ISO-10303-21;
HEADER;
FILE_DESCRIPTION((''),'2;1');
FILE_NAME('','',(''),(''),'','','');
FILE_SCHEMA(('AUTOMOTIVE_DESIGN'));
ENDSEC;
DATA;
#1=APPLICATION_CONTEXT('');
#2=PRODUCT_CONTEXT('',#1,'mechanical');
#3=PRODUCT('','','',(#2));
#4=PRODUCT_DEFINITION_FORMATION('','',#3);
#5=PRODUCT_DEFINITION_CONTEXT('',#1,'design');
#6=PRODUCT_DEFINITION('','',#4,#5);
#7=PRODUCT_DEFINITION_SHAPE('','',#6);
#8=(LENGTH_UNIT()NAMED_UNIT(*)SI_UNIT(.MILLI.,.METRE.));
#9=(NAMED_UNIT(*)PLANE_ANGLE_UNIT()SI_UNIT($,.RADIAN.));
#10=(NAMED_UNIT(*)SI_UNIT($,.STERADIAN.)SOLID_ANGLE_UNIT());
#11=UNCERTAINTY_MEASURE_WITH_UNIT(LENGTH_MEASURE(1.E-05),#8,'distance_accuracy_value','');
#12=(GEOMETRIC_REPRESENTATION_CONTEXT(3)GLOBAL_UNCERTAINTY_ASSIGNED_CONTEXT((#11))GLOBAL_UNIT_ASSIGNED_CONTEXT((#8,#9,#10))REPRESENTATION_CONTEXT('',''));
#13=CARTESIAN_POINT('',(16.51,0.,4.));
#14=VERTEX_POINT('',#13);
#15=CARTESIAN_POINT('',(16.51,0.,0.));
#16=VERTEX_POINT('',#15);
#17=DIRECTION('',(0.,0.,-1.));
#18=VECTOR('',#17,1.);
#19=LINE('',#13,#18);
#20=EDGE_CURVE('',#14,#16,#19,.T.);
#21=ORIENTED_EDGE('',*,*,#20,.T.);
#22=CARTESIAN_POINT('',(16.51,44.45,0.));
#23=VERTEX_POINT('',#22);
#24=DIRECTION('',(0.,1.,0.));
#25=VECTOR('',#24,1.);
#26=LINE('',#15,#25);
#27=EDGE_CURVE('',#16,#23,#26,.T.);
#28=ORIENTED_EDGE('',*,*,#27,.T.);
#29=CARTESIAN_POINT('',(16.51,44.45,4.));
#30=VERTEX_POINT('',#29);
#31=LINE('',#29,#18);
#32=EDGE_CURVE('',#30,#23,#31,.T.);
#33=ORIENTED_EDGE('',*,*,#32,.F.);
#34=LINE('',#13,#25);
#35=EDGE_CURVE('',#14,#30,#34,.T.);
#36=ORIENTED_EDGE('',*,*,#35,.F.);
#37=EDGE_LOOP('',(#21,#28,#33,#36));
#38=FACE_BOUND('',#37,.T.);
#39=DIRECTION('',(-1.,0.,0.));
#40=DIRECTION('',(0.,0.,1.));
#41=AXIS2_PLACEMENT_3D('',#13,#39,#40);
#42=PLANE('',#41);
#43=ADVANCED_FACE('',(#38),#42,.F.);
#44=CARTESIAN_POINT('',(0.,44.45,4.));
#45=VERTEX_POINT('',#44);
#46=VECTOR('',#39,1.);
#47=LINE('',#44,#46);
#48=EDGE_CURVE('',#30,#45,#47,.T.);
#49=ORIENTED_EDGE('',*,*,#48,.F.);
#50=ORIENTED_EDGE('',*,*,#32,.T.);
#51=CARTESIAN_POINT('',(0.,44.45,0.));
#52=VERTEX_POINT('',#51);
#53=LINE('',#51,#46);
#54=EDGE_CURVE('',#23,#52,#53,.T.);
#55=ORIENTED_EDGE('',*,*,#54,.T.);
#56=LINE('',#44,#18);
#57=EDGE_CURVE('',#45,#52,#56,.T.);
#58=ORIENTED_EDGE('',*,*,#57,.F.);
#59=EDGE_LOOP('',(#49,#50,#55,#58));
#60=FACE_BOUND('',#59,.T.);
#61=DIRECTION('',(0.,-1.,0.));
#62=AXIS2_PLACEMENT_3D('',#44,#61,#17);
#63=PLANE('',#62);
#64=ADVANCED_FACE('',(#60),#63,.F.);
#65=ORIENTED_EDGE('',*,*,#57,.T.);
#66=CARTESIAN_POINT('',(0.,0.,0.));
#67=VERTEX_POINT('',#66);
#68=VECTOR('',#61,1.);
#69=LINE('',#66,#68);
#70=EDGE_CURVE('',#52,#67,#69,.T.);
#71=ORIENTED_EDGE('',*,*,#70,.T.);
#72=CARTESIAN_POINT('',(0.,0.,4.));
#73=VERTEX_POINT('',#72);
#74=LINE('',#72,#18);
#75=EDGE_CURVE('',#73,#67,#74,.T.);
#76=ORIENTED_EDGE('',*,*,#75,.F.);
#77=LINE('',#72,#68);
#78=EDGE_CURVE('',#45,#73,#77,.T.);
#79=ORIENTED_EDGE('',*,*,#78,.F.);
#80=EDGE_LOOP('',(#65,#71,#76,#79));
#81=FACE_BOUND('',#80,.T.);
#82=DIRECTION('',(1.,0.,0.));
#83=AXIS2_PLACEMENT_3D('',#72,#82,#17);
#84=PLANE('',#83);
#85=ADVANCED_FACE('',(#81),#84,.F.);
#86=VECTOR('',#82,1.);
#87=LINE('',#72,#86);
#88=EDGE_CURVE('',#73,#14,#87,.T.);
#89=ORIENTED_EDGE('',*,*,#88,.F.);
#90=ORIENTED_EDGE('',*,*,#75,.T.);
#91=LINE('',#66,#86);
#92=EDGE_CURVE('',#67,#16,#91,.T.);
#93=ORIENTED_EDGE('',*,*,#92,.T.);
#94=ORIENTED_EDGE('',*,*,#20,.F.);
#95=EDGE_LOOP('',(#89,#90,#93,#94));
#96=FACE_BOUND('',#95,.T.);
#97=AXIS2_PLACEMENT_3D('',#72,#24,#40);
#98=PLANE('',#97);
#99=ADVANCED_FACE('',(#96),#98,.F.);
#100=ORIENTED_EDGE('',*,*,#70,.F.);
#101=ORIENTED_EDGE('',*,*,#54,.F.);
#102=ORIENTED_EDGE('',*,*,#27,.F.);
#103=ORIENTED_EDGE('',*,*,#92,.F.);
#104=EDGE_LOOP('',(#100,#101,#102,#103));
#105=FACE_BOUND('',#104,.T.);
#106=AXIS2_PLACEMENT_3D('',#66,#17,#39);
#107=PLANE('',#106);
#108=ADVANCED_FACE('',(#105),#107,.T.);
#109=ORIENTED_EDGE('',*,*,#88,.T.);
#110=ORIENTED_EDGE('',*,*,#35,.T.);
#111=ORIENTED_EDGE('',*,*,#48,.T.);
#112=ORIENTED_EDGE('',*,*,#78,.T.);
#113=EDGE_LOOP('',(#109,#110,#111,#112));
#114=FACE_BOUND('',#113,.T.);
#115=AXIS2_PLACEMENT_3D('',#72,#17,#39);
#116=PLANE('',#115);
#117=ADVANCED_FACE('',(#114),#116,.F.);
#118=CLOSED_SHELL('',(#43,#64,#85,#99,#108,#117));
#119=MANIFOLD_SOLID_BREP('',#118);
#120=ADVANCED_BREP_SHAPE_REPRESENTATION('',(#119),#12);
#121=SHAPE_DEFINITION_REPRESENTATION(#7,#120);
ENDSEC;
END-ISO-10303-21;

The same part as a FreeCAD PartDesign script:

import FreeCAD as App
import Part
import Sketcher
Q = App.Units.Quantity

doc = App.newDocument("Part")
body = doc.addObject("PartDesign::Body", "Body")

sketch1 = body.newObject("Sketcher::SketchObject", "Sketch")
sketch1.AttachmentSupport = (doc.getObject("XY_Plane"), [""])
sketch1.MapMode = "FlatFace"
sketch1.addGeometry([
    Part.LineSegment(App.Vector(0, 44.45, 0), App.Vector(0, 0, 0)),
    Part.LineSegment(App.Vector(0, 0, 0), App.Vector(16.51, 0, 0)),
    Part.LineSegment(App.Vector(16.51, 0, 0), App.Vector(16.51, 44.45, 0)),
    Part.LineSegment(App.Vector(16.51, 44.45, 0), App.Vector(0, 44.45, 0)),
], False)
sketch1.addConstraint([
    Sketcher.Constraint("Coincident", 0, 2, 1, 1),
    Sketcher.Constraint("Coincident", 1, 2, 2, 1),
    Sketcher.Constraint("Coincident", 2, 2, 3, 1),
    Sketcher.Constraint("Coincident", 3, 2, 0, 1),
    Sketcher.Constraint("Vertical", 0),
    Sketcher.Constraint("Horizontal", 1),
    Sketcher.Constraint("Vertical", 2),
    Sketcher.Constraint("Horizontal", 3),
    Sketcher.Constraint("Coincident", 0, 2, -1, 1),
    Sketcher.Constraint("DistanceX", 1, 1, 1, 2, Q("0.65 in")),
    Sketcher.Constraint("DistanceY", 0, 2, 0, 1, Q("1.75 in")),
])
pad1 = body.newObject("PartDesign::Pad", "Pad")
pad1.Profile = sketch1
pad1.Length = 4

doc.recompute()
